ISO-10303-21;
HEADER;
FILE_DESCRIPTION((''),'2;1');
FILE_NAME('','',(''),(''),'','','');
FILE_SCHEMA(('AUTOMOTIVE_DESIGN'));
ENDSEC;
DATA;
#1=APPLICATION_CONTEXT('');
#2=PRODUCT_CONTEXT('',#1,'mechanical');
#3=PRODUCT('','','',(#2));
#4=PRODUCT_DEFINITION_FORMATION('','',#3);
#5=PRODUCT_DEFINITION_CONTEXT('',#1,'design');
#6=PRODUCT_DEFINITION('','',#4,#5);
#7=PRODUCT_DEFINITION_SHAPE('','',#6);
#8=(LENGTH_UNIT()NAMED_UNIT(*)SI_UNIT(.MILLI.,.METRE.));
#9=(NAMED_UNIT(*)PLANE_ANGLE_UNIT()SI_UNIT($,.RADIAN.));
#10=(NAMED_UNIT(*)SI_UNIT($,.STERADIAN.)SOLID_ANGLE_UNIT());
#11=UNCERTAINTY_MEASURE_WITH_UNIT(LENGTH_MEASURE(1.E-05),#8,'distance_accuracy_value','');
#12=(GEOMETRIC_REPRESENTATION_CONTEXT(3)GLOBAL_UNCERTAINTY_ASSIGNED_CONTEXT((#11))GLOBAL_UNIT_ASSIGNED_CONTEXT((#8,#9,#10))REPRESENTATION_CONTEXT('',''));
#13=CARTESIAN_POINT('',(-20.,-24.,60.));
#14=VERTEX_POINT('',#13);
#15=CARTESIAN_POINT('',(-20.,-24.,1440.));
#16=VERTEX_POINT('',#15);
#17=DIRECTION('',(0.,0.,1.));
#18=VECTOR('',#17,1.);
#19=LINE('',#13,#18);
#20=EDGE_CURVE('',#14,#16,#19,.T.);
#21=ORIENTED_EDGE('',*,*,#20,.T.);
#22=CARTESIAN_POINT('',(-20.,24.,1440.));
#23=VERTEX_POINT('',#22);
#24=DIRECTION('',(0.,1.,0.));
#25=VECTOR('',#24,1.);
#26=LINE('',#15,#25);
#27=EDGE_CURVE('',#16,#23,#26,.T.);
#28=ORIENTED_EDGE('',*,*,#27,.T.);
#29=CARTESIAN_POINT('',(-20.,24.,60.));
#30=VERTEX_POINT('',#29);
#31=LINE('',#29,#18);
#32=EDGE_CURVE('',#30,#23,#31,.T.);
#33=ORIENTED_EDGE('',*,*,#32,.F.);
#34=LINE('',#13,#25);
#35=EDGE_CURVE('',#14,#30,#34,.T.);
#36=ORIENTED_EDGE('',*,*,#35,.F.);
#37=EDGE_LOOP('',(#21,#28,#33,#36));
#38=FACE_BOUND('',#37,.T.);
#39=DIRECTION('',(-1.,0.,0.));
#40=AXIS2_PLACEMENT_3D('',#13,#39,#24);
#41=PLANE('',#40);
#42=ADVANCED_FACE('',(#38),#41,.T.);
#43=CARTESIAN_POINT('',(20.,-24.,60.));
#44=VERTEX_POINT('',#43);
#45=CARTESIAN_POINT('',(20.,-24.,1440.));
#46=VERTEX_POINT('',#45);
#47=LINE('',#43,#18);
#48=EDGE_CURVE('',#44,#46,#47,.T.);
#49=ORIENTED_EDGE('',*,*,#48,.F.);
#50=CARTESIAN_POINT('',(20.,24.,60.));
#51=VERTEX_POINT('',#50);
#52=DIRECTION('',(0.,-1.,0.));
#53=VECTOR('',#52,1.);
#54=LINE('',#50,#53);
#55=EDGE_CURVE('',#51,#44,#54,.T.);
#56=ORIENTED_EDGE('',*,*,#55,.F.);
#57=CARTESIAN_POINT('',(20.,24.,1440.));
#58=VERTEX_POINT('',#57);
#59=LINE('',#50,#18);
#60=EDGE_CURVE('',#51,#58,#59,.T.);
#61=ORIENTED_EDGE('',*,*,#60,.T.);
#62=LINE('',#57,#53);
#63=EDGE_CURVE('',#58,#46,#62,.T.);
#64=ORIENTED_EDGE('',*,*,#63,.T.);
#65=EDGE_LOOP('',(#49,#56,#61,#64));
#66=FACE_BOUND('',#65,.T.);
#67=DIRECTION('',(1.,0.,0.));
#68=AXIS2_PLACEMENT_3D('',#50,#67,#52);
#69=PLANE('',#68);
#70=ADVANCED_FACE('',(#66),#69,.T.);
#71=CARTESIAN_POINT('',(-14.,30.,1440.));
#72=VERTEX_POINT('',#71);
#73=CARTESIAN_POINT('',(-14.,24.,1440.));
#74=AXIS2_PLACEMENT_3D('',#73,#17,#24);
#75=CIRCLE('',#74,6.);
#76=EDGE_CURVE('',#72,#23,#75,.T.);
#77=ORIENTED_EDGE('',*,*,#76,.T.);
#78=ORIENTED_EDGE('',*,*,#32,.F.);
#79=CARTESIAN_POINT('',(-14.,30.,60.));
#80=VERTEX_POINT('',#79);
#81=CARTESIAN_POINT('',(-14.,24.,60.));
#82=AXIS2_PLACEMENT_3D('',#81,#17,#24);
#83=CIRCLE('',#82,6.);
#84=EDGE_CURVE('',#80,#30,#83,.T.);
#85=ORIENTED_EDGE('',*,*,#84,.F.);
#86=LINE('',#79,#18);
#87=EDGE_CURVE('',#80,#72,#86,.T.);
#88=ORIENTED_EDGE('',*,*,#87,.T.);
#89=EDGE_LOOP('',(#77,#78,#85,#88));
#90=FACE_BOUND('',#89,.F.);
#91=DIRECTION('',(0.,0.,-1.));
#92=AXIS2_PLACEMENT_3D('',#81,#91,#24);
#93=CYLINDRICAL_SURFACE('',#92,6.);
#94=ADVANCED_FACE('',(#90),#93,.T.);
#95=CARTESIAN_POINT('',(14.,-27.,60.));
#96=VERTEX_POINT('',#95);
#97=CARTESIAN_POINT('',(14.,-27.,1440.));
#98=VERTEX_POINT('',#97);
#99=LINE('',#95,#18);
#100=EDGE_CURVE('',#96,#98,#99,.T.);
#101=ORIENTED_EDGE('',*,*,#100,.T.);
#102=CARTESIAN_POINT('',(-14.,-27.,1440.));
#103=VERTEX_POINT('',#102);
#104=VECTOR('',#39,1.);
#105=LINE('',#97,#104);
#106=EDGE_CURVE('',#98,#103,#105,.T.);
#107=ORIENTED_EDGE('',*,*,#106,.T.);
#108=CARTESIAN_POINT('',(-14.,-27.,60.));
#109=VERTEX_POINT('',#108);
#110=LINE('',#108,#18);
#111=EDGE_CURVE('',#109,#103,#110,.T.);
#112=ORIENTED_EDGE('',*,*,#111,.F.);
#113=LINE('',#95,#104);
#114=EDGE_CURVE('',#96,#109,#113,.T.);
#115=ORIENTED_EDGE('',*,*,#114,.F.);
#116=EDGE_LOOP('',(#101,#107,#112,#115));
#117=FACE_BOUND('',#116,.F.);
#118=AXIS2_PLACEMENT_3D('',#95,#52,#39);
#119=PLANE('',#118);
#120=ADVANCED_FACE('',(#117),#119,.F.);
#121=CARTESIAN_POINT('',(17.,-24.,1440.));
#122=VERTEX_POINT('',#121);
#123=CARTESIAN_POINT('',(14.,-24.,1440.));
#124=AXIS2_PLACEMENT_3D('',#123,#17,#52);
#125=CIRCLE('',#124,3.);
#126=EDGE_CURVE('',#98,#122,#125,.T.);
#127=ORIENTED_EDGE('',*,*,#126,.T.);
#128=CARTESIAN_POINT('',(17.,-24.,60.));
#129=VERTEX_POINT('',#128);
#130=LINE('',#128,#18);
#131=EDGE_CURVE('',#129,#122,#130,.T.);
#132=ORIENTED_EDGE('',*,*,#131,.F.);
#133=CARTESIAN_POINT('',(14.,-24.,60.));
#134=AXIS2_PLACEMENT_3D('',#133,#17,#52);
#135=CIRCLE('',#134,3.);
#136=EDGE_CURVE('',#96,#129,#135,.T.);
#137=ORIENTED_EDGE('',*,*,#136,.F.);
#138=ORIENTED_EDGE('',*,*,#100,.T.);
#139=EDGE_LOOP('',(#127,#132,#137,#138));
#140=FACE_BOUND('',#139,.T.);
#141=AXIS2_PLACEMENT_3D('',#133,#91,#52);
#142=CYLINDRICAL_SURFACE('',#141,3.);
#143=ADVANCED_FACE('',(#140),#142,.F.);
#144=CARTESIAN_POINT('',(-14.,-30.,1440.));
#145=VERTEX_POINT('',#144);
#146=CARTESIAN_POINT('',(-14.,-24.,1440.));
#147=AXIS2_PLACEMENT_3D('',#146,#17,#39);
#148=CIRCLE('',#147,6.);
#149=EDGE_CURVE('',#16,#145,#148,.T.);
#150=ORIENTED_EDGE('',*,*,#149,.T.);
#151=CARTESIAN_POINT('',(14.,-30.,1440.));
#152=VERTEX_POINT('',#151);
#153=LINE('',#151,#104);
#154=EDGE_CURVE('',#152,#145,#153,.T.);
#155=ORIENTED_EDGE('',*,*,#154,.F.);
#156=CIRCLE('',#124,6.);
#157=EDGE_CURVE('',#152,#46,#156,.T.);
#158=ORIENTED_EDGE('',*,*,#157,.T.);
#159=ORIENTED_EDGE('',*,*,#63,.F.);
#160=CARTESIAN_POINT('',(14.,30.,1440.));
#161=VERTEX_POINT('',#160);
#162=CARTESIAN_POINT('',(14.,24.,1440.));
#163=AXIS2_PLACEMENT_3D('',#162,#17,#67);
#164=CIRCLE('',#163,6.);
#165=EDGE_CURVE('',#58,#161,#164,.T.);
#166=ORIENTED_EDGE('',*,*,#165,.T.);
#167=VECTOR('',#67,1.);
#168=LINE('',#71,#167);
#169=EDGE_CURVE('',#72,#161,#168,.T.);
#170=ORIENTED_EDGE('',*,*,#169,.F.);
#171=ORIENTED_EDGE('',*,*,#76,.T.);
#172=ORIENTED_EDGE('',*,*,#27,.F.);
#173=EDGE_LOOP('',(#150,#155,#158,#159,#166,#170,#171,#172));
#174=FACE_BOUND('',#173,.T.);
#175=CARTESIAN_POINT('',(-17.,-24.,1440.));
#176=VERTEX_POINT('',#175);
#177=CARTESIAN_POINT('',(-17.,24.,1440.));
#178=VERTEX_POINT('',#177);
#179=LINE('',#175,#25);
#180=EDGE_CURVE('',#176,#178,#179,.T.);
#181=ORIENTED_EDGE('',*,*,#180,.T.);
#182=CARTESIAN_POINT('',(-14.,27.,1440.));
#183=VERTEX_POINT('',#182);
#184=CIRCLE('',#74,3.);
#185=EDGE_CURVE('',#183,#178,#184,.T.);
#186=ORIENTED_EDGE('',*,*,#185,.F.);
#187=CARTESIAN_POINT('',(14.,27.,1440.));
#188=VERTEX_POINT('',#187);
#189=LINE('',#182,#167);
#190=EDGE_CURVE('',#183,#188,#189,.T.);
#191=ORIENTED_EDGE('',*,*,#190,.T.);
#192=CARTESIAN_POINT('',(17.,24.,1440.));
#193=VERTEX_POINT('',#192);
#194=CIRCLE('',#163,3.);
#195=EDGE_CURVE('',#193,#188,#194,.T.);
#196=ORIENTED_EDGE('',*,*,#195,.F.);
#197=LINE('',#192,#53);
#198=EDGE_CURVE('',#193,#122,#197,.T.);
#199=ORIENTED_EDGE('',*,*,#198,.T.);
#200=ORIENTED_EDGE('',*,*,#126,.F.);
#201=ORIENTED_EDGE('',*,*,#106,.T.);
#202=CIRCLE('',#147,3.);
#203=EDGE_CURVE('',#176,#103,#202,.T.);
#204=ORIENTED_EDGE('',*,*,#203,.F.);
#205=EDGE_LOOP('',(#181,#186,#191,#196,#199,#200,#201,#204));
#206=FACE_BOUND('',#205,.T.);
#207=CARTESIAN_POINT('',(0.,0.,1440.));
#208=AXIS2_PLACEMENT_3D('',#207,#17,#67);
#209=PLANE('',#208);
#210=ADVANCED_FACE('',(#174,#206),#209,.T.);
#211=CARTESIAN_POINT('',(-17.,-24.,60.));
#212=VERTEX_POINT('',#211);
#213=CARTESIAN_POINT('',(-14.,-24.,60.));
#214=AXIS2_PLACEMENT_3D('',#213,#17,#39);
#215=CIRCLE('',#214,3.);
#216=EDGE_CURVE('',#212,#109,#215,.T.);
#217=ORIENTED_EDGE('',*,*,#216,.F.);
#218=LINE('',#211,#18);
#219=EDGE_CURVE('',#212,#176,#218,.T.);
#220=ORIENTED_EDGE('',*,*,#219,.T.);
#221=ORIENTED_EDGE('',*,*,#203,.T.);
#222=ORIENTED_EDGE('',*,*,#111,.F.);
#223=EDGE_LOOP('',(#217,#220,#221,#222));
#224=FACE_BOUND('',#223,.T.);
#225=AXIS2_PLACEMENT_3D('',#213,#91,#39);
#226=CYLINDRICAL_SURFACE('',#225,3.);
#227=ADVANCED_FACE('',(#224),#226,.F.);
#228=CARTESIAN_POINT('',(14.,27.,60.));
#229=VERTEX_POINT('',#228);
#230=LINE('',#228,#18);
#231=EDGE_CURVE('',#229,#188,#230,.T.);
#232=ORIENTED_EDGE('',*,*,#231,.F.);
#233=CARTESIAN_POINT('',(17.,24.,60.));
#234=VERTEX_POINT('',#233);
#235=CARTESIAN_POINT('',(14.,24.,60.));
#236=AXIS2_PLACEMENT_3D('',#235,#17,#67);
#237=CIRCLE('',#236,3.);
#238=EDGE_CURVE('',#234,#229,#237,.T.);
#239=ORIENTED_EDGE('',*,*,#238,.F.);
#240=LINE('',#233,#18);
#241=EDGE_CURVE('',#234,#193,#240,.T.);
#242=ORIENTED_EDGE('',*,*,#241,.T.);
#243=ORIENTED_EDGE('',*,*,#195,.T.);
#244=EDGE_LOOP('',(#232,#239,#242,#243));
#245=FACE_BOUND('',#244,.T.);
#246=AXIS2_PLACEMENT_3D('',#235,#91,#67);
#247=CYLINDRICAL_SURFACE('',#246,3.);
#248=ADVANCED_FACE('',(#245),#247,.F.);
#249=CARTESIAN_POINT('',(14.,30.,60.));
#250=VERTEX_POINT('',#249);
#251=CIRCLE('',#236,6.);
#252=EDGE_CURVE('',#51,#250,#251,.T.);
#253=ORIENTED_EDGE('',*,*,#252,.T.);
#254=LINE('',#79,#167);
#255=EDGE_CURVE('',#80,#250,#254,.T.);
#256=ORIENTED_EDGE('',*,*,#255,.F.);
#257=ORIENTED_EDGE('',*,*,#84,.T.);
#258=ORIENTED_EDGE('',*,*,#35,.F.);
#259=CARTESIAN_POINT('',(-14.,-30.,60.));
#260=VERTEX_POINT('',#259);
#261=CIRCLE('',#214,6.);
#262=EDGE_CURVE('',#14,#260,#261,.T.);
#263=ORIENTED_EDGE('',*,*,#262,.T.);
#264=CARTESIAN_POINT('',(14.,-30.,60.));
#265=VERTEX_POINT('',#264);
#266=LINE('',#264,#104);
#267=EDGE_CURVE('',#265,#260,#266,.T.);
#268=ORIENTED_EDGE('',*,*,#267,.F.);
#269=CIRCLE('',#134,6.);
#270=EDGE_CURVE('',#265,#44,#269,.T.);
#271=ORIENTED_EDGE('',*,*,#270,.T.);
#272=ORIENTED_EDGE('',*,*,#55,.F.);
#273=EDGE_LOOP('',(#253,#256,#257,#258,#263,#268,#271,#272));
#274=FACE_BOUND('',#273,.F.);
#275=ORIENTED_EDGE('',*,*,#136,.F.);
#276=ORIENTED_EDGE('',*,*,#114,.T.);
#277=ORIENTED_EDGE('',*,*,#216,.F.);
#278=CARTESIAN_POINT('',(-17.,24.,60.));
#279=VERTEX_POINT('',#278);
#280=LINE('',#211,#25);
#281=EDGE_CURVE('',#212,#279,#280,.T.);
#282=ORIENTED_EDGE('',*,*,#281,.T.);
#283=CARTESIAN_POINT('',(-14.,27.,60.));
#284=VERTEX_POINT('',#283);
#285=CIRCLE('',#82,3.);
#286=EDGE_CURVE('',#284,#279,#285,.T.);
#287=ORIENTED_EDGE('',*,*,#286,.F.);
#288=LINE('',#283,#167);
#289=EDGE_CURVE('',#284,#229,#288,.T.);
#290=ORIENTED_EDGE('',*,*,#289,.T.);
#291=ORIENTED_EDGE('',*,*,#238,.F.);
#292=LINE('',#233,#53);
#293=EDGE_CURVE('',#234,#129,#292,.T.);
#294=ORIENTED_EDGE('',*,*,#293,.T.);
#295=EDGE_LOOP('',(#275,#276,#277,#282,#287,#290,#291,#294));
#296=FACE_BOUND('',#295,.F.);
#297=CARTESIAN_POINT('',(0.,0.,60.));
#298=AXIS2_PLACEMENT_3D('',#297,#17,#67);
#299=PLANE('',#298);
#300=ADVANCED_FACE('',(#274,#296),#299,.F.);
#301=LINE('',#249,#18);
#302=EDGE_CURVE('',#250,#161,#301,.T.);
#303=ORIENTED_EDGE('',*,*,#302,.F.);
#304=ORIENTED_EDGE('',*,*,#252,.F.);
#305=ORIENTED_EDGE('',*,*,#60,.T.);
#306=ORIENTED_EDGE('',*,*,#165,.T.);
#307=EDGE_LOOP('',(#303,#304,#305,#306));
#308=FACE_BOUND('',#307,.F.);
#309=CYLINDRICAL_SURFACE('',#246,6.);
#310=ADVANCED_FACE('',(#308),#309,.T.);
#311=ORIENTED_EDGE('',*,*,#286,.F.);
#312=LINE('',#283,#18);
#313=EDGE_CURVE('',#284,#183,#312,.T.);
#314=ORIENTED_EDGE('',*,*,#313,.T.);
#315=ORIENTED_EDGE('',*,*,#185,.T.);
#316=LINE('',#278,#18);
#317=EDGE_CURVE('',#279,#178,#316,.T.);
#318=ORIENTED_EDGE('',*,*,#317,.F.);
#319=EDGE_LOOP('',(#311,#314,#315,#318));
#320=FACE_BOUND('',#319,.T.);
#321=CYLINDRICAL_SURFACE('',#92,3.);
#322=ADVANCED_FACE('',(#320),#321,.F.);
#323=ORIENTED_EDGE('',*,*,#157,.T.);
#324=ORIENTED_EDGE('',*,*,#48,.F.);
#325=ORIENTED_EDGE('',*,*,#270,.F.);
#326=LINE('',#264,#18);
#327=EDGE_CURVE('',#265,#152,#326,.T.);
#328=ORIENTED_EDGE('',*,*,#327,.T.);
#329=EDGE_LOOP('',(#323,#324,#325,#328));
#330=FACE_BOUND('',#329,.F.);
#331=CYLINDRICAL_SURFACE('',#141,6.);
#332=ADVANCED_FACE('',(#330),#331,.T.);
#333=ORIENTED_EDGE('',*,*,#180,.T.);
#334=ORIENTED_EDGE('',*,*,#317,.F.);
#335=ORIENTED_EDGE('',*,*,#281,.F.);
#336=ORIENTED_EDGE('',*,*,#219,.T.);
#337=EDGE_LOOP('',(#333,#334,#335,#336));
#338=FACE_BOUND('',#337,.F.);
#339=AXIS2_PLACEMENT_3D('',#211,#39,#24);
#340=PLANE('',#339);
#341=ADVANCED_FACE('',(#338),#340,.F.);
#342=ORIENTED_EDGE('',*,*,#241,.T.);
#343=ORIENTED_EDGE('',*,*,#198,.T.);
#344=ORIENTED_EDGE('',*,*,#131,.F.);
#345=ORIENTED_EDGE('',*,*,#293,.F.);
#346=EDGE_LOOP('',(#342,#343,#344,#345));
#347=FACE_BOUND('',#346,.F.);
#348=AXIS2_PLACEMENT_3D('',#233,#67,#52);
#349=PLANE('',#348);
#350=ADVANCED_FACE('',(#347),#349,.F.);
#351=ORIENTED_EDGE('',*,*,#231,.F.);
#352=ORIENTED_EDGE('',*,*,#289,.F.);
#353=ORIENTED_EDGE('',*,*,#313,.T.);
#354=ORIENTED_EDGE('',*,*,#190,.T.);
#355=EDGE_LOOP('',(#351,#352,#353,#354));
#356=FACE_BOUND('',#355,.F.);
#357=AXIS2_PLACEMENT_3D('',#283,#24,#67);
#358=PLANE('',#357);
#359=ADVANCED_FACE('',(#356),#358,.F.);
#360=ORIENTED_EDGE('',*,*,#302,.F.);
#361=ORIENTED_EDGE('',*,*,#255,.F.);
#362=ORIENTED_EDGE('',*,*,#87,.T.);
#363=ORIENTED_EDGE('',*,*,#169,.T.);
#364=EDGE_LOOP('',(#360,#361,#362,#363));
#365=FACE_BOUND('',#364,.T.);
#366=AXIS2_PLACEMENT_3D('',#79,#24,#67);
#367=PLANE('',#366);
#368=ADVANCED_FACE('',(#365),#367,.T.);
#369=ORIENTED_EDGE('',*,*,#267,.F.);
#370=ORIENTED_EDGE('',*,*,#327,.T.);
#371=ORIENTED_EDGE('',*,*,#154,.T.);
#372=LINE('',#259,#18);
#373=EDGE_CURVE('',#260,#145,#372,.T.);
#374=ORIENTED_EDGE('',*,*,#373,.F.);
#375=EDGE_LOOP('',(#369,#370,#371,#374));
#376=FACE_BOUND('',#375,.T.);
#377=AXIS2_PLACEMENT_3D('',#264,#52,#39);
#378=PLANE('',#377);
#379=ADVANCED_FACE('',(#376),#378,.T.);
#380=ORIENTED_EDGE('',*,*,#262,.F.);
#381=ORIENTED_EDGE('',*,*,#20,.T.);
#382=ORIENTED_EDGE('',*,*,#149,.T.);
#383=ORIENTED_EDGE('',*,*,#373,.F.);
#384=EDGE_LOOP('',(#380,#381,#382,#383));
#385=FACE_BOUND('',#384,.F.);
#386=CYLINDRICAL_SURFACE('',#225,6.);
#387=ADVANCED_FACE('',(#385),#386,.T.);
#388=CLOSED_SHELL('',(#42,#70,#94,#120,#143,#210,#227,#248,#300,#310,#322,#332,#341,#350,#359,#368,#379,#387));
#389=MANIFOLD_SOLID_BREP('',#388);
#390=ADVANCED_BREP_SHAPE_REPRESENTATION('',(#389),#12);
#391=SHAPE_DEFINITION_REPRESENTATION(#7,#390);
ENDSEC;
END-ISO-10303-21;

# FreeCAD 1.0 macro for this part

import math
import FreeCAD as App
import Part
import Sketcher

V = App.Vector

doc = App.newDocument("Part")
body = doc.addObject("PartDesign::Body", "Body")

# Sketch on XY plane
sketch1 = body.newObject("Sketcher::SketchObject", "Sketch")
sketch1.AttachmentSupport = (doc.getObject("XY_Plane"), [""])
sketch1.MapMode = "FlatFace"
sketch1.AttachmentOffset = App.Placement(V(0, 0, 60), App.Rotation())
sketch1.addGeometry([
    Part.LineSegment(V(-20, 24, 0), V(-20, -24, 0)),  # 0
    Part.ArcOfCircle(Part.Circle(V(-14, -24, 0), V(0, 0, 1), 6), math.radians(180), math.radians(270)),  # 1
    Part.LineSegment(V(-14, -30, 0), V(14, -30, 0)),  # 2
    Part.ArcOfCircle(Part.Circle(V(14, -24, 0), V(0, 0, 1), 6), math.radians(-90), math.radians(0)),  # 3
    Part.LineSegment(V(20, -24, 0), V(20, 24, 0)),  # 4
    Part.ArcOfCircle(Part.Circle(V(14, 24, 0), V(0, 0, 1), 6), math.radians(0), math.radians(90)),  # 5
    Part.LineSegment(V(14, 30, 0), V(-14, 30, 0)),  # 6
    Part.ArcOfCircle(Part.Circle(V(-14, 24, 0), V(0, 0, 1), 6), math.radians(90), math.radians(180)),  # 7
    Part.ArcOfCircle(Part.Circle(V(-14, 24, 0), V(0, 0, 1), 3), math.radians(90), math.radians(180)),  # 8
    Part.LineSegment(V(-14, 27, 0), V(14, 27, 0)),  # 9
    Part.ArcOfCircle(Part.Circle(V(14, 24, 0), V(0, 0, 1), 3), math.radians(0), math.radians(90)),  # 10
    Part.LineSegment(V(17, 24, 0), V(17, -24, 0)),  # 11
    Part.ArcOfCircle(Part.Circle(V(14, -24, 0), V(0, 0, 1), 3), math.radians(-90), math.radians(0)),  # 12
    Part.LineSegment(V(14, -27, 0), V(-14, -27, 0)),  # 13
    Part.ArcOfCircle(Part.Circle(V(-14, -24, 0), V(0, 0, 1), 3), math.radians(180), math.radians(270)),  # 14
    Part.LineSegment(V(-17, -24, 0), V(-17, 24, 0)),  # 15
], False)
sketch1.addConstraint([
    Sketcher.Constraint("Tangent", 0, 2, 1, 1),
    Sketcher.Constraint("Tangent", 1, 2, 2, 1),
    Sketcher.Constraint("Tangent", 2, 2, 3, 1),
    Sketcher.Constraint("Tangent", 3, 2, 4, 1),
    Sketcher.Constraint("Tangent", 4, 2, 5, 1),
    Sketcher.Constraint("Tangent", 5, 2, 6, 1),
    Sketcher.Constraint("Tangent", 6, 2, 7, 1),
    Sketcher.Constraint("Tangent", 7, 2, 0, 1),
    Sketcher.Constraint("Tangent", 8, 1, 9, 1),
    Sketcher.Constraint("Tangent", 9, 2, 10, 2),
    Sketcher.Constraint("Tangent", 10, 1, 11, 1),
    Sketcher.Constraint("Tangent", 11, 2, 12, 2),
    Sketcher.Constraint("Tangent", 12, 1, 13, 1),
    Sketcher.Constraint("Tangent", 13, 2, 14, 2),
    Sketcher.Constraint("Tangent", 14, 1, 15, 1),
    Sketcher.Constraint("Tangent", 15, 2, 8, 2),
    Sketcher.Constraint("Vertical", 0),
    Sketcher.Constraint("Horizontal", 2),
    Sketcher.Constraint("Vertical", 4),
    Sketcher.Constraint("Horizontal", 6),
    Sketcher.Constraint("Horizontal", 9),
    Sketcher.Constraint("Vertical", 11),
    Sketcher.Constraint("Horizontal", 13),
    Sketcher.Constraint("Vertical", 15),
    Sketcher.Constraint("Coincident", 8, 3, 7, 3),
    Sketcher.Constraint("Coincident", 10, 3, 5, 3),
    Sketcher.Constraint("Coincident", 12, 3, 3, 3),
    Sketcher.Constraint("Equal", 1, 3),
    Sketcher.Constraint("Equal", 3, 5),
    Sketcher.Constraint("Equal", 5, 7),
    Sketcher.Constraint("Equal", 12, 14),
    Sketcher.Constraint("Symmetric", 1, 3, 5, 3, -1, 1),
    Sketcher.Constraint("Radius", 1, 6.0),
    Sketcher.Constraint("Radius", 8, 3.0),
    Sketcher.Constraint("DistanceX", 0, 2, -1, 1, 20.0),
    Sketcher.Constraint("DistanceY", 1, 2, -1, 1, 30.0),
])
pad1 = body.newObject("PartDesign::Pad", "Pad")
pad1.Profile = sketch1
pad1.Length = 1380

doc.recompute()
